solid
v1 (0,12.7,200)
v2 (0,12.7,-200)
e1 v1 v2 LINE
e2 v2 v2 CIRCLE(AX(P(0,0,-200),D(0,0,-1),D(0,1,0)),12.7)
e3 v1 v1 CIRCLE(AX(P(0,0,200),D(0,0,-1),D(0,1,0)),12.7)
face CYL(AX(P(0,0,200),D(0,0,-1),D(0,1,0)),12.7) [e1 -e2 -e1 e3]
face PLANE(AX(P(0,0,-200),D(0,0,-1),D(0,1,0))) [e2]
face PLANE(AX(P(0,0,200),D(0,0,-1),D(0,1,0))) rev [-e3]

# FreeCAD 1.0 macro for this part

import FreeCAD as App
import Part
import Sketcher

V = App.Vector
Q = App.Units.Quantity


def add_polygon(sketch, points):
    """Adds a closed chain of lines whose ends are joined by coincident constraints."""
    first, n = sketch.GeometryCount, len(points)
    for a, b in zip(points, points[1:] + points[:1]):
        sketch.addGeometry(Part.LineSegment(App.Vector(*a, 0), App.Vector(*b, 0)), False)
    for i in range(n):
        sketch.addConstraint(Sketcher.Constraint("Coincident", first + i, 2, first + (i + 1) % n, 1))

doc = App.newDocument("Part")
body = doc.addObject("PartDesign::Body", "Body")

# Sketch on YZ plane
sketch1 = body.newObject("Sketcher::SketchObject", "Sketch")
sketch1.AttachmentSupport = (doc.getObject("YZ_Plane"), [""])
sketch1.MapMode = "FlatFace"
add_polygon(sketch1, [(13, 200), (0, 200), (0, -200), (13, -200)])  # lines 0-3
sketch1.addConstraint([
    Sketcher.Constraint("Horizontal", 0),
    Sketcher.Constraint("Vertical", 1),
    Sketcher.Constraint("Horizontal", 2),
    Sketcher.Constraint("Vertical", 3),
    Sketcher.Constraint("Symmetric", 0, 2, 1, 2, -1, 1),
    Sketcher.Constraint("DistanceY", 1, 2, 1, 1, Q("400 mm")),
    Sketcher.Constraint("DistanceX", 0, 2, 0, 1, Q("12.7 mm")),
])
revolution = body.newObject("PartDesign::Revolution", "Revolution")
revolution.Profile = sketch1
revolution.ReferenceAxis = (sketch1, ["V_Axis"])
revolution.Angle = 360

doc.recompute()
